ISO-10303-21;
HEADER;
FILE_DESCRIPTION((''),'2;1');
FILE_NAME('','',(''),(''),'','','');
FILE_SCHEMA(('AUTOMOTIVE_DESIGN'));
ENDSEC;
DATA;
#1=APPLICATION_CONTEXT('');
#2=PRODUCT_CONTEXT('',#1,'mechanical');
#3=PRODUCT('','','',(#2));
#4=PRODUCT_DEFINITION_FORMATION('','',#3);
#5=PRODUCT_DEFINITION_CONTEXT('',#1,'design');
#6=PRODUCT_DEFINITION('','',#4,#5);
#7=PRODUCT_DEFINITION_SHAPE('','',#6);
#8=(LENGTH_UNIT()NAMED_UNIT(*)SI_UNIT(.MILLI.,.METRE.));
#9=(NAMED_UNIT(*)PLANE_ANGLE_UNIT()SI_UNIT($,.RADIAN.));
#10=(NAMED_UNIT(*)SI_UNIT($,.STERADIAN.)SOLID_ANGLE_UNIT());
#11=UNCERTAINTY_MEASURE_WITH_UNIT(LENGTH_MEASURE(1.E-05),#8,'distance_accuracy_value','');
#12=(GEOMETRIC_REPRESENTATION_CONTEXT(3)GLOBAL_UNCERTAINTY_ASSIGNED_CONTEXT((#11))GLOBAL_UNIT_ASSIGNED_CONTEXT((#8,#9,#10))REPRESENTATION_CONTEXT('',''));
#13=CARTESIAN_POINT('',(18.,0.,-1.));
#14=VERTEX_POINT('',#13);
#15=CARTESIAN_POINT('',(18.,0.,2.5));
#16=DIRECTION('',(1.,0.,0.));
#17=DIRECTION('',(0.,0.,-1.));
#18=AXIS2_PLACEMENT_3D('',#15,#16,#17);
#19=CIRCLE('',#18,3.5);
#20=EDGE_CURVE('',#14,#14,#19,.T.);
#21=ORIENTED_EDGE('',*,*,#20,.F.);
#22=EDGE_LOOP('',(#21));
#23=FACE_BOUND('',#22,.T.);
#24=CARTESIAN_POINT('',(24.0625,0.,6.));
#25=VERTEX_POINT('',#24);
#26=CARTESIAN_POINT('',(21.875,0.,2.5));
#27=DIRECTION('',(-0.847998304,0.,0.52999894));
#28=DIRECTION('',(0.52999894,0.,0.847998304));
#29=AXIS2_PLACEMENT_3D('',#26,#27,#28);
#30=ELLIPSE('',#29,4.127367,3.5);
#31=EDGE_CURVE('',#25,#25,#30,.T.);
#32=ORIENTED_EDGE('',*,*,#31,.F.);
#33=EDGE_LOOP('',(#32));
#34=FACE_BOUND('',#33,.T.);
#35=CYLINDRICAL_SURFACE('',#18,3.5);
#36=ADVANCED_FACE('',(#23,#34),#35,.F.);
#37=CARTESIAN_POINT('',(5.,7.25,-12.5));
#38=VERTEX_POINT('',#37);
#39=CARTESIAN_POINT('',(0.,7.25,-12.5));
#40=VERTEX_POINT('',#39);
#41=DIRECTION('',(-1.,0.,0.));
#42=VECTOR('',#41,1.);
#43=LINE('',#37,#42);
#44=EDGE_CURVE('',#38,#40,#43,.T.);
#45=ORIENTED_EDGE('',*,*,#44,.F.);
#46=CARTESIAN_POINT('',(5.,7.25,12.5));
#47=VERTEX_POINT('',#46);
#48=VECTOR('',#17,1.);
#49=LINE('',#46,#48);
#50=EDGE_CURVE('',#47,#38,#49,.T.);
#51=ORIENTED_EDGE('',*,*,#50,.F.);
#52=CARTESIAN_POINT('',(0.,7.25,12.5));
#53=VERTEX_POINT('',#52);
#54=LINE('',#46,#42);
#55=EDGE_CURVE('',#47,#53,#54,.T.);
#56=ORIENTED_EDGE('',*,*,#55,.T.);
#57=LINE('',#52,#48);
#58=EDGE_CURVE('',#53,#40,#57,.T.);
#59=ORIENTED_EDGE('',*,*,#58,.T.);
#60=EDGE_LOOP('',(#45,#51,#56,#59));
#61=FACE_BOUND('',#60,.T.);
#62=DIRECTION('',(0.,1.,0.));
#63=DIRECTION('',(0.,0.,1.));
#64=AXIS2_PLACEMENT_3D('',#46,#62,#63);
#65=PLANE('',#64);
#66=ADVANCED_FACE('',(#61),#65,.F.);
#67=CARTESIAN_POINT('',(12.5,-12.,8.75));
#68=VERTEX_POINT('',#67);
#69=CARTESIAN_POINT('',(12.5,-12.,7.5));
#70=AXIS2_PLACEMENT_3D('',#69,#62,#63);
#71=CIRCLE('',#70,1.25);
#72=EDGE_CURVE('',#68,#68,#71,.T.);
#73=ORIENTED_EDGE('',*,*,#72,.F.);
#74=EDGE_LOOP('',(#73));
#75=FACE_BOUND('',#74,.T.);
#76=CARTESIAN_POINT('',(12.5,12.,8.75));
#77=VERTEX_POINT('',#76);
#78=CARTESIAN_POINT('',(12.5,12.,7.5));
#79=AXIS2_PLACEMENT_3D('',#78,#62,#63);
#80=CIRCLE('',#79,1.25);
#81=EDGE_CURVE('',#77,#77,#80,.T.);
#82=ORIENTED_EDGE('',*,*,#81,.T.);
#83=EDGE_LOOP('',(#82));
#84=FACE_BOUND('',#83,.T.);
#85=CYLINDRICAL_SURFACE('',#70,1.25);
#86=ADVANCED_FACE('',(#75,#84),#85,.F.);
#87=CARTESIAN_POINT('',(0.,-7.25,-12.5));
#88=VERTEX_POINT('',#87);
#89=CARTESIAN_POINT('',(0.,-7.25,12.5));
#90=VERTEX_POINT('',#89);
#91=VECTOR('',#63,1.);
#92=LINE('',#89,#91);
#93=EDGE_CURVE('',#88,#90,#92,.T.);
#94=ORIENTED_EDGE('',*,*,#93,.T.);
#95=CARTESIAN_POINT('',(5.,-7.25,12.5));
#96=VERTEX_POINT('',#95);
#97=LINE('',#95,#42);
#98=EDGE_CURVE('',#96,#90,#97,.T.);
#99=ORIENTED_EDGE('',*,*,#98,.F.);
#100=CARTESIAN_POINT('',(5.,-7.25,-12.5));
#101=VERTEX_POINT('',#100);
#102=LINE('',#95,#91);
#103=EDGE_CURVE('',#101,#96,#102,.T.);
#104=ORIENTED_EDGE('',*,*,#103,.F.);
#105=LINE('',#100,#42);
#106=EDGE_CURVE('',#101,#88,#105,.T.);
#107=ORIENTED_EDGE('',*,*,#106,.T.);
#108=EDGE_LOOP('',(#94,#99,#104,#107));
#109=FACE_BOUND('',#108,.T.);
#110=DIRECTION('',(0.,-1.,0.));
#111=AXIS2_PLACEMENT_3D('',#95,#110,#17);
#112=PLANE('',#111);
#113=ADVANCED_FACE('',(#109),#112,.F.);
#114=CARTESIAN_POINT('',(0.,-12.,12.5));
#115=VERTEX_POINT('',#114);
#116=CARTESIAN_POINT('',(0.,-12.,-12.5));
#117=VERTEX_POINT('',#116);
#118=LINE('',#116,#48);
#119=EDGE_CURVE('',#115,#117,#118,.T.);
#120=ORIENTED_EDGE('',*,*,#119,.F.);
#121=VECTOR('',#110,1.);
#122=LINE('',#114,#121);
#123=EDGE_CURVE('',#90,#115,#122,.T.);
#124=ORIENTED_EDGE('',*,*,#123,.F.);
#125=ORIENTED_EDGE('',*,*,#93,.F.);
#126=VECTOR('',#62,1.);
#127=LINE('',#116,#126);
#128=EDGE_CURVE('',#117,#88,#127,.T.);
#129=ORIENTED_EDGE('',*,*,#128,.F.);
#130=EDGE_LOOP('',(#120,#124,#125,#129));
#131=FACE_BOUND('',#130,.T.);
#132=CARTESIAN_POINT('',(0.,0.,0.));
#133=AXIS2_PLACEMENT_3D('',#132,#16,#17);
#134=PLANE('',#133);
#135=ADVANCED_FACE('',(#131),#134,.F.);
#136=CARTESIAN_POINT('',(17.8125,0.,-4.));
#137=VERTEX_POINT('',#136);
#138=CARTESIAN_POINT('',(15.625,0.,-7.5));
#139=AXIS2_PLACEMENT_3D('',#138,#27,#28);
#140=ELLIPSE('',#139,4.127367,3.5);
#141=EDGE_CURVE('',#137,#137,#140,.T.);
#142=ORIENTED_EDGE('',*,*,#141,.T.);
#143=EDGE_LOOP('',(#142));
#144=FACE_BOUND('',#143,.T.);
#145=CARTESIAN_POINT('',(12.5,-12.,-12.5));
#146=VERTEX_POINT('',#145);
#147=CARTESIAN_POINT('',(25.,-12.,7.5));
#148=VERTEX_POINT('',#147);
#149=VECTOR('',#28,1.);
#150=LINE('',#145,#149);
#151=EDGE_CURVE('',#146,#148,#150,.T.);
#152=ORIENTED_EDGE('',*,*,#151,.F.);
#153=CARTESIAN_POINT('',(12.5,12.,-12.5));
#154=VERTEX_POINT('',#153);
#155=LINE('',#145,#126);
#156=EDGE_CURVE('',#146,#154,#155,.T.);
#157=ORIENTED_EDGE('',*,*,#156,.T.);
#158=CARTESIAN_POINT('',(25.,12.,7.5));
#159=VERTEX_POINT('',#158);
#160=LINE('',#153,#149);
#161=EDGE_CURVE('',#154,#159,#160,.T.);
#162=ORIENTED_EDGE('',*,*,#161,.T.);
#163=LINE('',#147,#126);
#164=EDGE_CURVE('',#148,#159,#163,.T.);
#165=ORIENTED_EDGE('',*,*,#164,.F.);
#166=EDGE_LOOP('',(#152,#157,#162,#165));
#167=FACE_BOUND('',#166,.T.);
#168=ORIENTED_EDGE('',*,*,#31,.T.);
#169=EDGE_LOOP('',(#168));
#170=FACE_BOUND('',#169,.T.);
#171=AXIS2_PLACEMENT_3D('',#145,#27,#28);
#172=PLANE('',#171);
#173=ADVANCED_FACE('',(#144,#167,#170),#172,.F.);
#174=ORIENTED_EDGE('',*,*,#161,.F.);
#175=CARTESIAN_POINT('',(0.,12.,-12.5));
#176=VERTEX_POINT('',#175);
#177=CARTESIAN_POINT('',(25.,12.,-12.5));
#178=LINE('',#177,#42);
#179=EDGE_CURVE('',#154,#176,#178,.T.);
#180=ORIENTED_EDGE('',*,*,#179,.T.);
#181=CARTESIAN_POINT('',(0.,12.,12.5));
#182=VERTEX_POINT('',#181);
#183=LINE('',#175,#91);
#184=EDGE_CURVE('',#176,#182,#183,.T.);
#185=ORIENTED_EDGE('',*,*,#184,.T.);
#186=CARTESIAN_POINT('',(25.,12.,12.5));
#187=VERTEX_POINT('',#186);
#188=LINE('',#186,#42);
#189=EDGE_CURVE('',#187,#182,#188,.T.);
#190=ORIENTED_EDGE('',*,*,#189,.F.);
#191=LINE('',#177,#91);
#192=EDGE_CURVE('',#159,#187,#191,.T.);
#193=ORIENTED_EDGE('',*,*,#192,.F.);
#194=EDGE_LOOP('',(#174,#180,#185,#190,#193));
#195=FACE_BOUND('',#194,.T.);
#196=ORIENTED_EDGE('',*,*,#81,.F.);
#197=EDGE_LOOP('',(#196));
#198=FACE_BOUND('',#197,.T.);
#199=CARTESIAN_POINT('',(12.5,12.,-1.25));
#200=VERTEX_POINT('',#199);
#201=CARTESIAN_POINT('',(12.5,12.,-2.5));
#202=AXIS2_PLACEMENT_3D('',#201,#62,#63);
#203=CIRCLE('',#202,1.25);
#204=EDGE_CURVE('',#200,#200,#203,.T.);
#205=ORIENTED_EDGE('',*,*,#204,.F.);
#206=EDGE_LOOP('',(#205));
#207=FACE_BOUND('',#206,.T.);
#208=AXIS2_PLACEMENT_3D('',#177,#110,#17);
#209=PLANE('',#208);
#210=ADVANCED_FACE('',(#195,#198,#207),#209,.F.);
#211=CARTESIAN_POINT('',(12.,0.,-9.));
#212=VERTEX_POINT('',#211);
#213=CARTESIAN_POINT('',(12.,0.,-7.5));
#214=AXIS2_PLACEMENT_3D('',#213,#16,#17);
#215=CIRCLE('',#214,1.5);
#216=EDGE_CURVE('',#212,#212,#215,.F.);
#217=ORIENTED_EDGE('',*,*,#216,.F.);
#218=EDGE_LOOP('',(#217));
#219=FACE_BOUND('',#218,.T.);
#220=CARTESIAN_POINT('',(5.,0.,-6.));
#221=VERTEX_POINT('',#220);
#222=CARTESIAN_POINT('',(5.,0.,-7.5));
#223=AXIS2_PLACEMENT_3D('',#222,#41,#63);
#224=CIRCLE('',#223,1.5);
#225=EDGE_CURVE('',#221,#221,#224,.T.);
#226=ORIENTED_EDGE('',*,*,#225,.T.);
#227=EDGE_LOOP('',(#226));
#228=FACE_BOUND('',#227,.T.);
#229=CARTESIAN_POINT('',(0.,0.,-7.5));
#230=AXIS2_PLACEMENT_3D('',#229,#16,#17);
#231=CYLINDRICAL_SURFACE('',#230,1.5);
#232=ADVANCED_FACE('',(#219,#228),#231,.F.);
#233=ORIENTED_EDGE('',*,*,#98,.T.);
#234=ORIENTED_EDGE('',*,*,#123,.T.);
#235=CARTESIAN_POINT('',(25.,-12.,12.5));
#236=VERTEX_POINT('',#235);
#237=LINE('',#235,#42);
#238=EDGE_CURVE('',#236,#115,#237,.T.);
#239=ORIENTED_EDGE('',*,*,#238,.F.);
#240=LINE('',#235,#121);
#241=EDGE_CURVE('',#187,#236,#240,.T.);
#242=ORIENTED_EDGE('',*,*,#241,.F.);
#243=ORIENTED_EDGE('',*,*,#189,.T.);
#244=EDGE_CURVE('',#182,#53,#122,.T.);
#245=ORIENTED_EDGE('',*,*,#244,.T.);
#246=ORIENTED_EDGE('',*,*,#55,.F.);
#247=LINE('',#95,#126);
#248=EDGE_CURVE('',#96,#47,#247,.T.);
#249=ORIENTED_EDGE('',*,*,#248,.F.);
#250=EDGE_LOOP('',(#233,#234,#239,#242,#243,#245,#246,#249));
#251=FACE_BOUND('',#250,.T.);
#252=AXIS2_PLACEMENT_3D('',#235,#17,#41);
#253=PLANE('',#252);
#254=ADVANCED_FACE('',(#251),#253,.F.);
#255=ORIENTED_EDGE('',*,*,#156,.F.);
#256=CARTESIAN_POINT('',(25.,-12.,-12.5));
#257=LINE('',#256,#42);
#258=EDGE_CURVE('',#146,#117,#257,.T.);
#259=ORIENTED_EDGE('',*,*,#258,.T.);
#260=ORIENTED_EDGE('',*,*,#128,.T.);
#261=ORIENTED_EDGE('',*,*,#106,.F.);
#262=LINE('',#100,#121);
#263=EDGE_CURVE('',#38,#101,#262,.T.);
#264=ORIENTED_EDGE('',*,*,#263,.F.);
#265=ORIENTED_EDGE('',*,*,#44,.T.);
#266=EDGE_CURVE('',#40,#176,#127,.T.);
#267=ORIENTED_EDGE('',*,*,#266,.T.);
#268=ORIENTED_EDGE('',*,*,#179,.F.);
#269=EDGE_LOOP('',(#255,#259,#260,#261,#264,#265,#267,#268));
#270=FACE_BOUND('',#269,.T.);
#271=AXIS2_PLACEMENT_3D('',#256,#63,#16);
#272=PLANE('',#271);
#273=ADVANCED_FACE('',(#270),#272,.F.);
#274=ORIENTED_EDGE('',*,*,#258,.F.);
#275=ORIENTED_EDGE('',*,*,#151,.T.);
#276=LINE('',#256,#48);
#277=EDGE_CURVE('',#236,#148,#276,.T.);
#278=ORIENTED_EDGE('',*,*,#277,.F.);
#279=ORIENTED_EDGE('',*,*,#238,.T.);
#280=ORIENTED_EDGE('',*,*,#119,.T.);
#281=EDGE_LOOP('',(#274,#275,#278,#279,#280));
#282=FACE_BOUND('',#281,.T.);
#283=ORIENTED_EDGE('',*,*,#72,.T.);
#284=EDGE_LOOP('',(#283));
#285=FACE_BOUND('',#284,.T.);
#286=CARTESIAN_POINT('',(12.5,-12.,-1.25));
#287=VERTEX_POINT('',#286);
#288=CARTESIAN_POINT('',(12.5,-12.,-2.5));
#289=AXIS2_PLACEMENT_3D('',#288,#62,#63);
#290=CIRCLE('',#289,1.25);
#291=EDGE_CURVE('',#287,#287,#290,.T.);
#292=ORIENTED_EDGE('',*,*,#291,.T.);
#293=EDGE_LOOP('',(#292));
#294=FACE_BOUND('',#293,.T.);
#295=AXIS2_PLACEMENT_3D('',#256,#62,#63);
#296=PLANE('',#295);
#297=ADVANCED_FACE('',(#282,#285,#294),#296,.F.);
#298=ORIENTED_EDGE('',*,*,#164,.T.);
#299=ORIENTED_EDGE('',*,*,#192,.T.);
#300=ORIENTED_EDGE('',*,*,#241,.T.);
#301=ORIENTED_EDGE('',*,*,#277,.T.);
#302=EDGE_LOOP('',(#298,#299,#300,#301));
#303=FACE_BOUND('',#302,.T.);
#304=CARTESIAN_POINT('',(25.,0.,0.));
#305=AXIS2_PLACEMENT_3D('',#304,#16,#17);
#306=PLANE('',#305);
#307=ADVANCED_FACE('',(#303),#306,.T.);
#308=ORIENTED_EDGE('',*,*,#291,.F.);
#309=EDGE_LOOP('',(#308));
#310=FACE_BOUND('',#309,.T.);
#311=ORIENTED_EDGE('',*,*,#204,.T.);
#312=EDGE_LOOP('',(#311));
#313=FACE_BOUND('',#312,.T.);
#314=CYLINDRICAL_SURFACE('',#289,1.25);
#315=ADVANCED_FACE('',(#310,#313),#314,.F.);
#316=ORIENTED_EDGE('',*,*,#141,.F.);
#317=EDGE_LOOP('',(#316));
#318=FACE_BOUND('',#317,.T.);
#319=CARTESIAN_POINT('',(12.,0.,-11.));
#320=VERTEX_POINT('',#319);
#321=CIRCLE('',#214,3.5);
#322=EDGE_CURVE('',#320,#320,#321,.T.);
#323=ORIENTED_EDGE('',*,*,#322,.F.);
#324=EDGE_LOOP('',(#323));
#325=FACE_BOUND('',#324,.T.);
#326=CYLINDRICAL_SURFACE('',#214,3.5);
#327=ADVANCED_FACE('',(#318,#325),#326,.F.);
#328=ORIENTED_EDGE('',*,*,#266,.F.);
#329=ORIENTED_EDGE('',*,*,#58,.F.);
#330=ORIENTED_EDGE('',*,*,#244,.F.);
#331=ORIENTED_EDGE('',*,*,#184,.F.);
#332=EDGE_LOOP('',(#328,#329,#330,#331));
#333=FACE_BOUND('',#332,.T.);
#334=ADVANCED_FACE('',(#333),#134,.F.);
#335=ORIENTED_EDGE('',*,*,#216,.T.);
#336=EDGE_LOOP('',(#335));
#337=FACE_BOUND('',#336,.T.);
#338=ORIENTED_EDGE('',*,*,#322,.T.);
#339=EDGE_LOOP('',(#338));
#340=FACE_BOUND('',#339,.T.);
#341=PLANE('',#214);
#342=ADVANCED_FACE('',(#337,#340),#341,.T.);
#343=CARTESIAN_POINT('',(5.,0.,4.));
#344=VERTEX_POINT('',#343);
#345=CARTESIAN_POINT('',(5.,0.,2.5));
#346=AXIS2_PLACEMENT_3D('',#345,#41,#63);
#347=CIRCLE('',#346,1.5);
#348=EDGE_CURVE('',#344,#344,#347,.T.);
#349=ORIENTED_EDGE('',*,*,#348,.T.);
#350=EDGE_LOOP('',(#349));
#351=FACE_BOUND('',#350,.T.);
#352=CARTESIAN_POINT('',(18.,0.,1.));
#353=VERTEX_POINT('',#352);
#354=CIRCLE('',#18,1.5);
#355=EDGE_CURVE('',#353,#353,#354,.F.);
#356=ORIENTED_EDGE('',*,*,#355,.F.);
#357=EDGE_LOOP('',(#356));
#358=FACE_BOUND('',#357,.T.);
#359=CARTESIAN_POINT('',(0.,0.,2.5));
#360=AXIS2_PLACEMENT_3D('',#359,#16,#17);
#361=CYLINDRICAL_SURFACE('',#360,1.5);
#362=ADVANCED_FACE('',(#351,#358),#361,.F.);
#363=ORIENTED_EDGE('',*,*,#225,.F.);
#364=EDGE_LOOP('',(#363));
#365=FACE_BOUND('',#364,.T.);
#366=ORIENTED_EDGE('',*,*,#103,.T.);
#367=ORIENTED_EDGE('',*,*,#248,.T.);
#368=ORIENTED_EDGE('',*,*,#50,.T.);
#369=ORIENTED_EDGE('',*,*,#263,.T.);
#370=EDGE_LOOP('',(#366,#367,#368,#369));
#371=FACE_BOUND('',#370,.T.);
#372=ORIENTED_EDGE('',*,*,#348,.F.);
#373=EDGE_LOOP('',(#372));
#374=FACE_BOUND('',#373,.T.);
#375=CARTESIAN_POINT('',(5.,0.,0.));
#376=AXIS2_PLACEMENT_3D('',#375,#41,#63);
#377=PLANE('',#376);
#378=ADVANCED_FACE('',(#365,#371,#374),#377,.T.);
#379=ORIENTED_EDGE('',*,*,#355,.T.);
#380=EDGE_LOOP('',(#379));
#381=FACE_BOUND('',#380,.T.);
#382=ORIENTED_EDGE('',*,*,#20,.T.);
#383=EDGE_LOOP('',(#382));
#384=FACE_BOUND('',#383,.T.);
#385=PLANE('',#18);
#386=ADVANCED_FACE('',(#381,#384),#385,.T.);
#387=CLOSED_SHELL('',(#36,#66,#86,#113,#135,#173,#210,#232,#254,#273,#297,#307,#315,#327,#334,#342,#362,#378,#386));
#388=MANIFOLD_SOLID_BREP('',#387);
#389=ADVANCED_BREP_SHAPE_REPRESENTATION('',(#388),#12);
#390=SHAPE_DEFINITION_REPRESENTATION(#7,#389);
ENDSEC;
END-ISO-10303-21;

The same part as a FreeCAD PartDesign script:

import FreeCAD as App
import Part
import Sketcher

V = App.Vector

doc = App.newDocument("Part")
body = doc.addObject("PartDesign::Body", "Body")

# Sketch on YZ plane
sketch1 = body.newObject("Sketcher::SketchObject", "Sketch")
sketch1.AttachmentSupport = (doc.getObject("YZ_Plane"), [""])
sketch1.MapMode = "FlatFace"
sketch1.addGeometry([
    Part.LineSegment(V(12, 12.5, 0), V(-12, 12.5, 0)),
    Part.LineSegment(V(-12, 12.5, 0), V(-12, -12.5, 0)),
    Part.LineSegment(V(-12, -12.5, 0), V(12, -12.5, 0)),
    Part.LineSegment(V(12, -12.5, 0), V(12, 12.5, 0)),
], False)
sketch1.addConstraint([
    Sketcher.Constraint("Coincident", 0, 2, 1, 1),
    Sketcher.Constraint("Coincident", 1, 2, 2, 1),
    Sketcher.Constraint("Coincident", 2, 2, 3, 1),
    Sketcher.Constraint("Coincident", 3, 2, 0, 1),
    Sketcher.Constraint("Horizontal", 0),
    Sketcher.Constraint("Vertical", 1),
    Sketcher.Constraint("Horizontal", 2),
    Sketcher.Constraint("Vertical", 3),
    Sketcher.Constraint("Symmetric", 0, 2, 2, 2, -1, 1),
    Sketcher.Constraint("DistanceX", 0, 2, 0, 1, 24.0),
    Sketcher.Constraint("DistanceY", 1, 2, 1, 1, 25.0),
])
pad1 = body.newObject("PartDesign::Pad", "Pad")
pad1.Profile = sketch1
pad1.Length = 25

# Sketch on YZ plane
sketch2 = body.newObject("Sketcher::SketchObject", "Sketch001")
sketch2.AttachmentSupport = (doc.getObject("YZ_Plane"), [""])
sketch2.MapMode = "FlatFace"
sketch2.addGeometry([
    Part.LineSegment(V(7.25, -12.5, 0), V(-7.25, -12.5, 0)),
    Part.LineSegment(V(-7.25, -12.5, 0), V(-7.25, 12.5, 0)),
    Part.LineSegment(V(-7.25, 12.5, 0), V(7.25, 12.5, 0)),
    Part.LineSegment(V(7.25, 12.5, 0), V(7.25, -12.5, 0)),
], False)
sketch2.addConstraint([
    Sketcher.Constraint("Coincident", 0, 2, 1, 1),
    Sketcher.Constraint("Coincident", 1, 2, 2, 1),
    Sketcher.Constraint("Coincident", 2, 2, 3, 1),
    Sketcher.Constraint("Coincident", 3, 2, 0, 1),
    Sketcher.Constraint("Horizontal", 0),
    Sketcher.Constraint("Vertical", 1),
    Sketcher.Constraint("Horizontal", 2),
    Sketcher.Constraint("Vertical", 3),
    Sketcher.Constraint("Symmetric", 0, 2, 2, 2, -1, 1),
    Sketcher.Constraint("DistanceY", 1, 1, 1, 2, 25.0),
    Sketcher.Constraint("DistanceX", 0, 2, 0, 1, 14.5),
])
pocket1 = body.newObject("PartDesign::Pocket", "Pocket")
pocket1.Profile = sketch2
pocket1.Length = 5
pocket1.Reversed = True

# Sketch on YZ plane
sketch3 = body.newObject("Sketcher::SketchObject", "Sketch002")
sketch3.AttachmentSupport = (doc.getObject("YZ_Plane"), [""])
sketch3.MapMode = "FlatFace"
sketch3.AttachmentOffset = App.Placement(V(0, 0, 25), App.Rotation())
sketch3.addGeometry([
    Part.Circle(V(0, 2.5, 0), V(0, 0, 1), 1.5),
    Part.Circle(V(0, -7.5, 0), V(0, 0, 1), 1.5),
], False)
sketch3.addConstraint([
    Sketcher.Constraint("Equal", 0, 1),
    Sketcher.Constraint("PointOnObject", 0, 3, -2),
    Sketcher.Constraint("PointOnObject", 1, 3, -2),
    Sketcher.Constraint("Diameter", 0, 3.0),
    Sketcher.Constraint("DistanceY", 1, 3, 0, 3, 10.0),
    Sketcher.Constraint("DistanceY", -1, 1, 0, 3, 2.5),
])
pocket2 = body.newObject("PartDesign::Pocket", "Pocket001")
pocket2.Profile = sketch3
pocket2.Type = "ThroughAll"

# Sketch on XZ plane
sketch4 = body.newObject("Sketcher::SketchObject", "Sketch003")
sketch4.AttachmentSupport = (doc.getObject("XZ_Plane"), [""])
sketch4.MapMode = "FlatFace"
sketch4.AttachmentOffset = App.Placement(V(0, 0, -12), App.Rotation())
sketch4.addGeometry([
    Part.LineSegment(V(12.5, -12.5, 0), V(25, 7.5, 0)),
    Part.LineSegment(V(25, 7.5, 0), V(25, -12.5, 0)),
    Part.LineSegment(V(25, -12.5, 0), V(12.5, -12.5, 0)),
], False)
sketch4.addConstraint([
    Sketcher.Constraint("Coincident", 0, 2, 1, 1),
    Sketcher.Constraint("Coincident", 1, 2, 2, 1),
    Sketcher.Constraint("Coincident", 2, 2, 0, 1),
    Sketcher.Constraint("Vertical", 1),
    Sketcher.Constraint("Horizontal", 2),
    Sketcher.Constraint("DistanceY", 1, 2, 1, 1, 20.0),
    Sketcher.Constraint("DistanceX", 2, 2, 2, 1, 12.5),
    Sketcher.Constraint("DistanceX", -1, 1, 0, 2, 25.0),
    Sketcher.Constraint("DistanceY", -1, 1, 0, 2, 7.5),
])
pocket3 = body.newObject("PartDesign::Pocket", "Pocket002")
pocket3.Profile = sketch4
pocket3.Type = "ThroughAll"
pocket3.Reversed = True

# Sketch on YZ plane
sketch5 = body.newObject("Sketcher::SketchObject", "Sketch004")
sketch5.AttachmentSupport = (doc.getObject("YZ_Plane"), [""])
sketch5.MapMode = "FlatFace"
sketch5.AttachmentOffset = App.Placement(V(0, 0, 25), App.Rotation())
sketch5.addGeometry(Part.Circle(V(0, -7.5, 0), V(0, 0, 1), 3.5), False)
sketch5.addConstraint([
    Sketcher.Constraint("PointOnObject", 0, 3, -2),
    Sketcher.Constraint("Diameter", 0, 7.0),
    Sketcher.Constraint("DistanceY", 0, 3, -1, 1, 7.5),
])
pocket4 = body.newObject("PartDesign::Pocket", "Pocket003")
pocket4.Profile = sketch5
pocket4.Length = 13

# Sketch on YZ plane
sketch6 = body.newObject("Sketcher::SketchObject", "Sketch005")
sketch6.AttachmentSupport = (doc.getObject("YZ_Plane"), [""])
sketch6.MapMode = "FlatFace"
sketch6.AttachmentOffset = App.Placement(V(0, 0, 25), App.Rotation())
sketch6.addGeometry(Part.Circle(V(0, 2.5, 0), V(0, 0, 1), 3.5), False)
sketch6.addConstraint([
    Sketcher.Constraint("PointOnObject", 0, 3, -2),
    Sketcher.Constraint("Diameter", 0, 7.0),
    Sketcher.Constraint("DistanceY", -1, 1, 0, 3, 2.5),
])
pocket5 = body.newObject("PartDesign::Pocket", "Pocket004")
pocket5.Profile = sketch6
pocket5.Length = 7

# Sketch on XZ plane
sketch7 = body.newObject("Sketcher::SketchObject", "Sketch006")
sketch7.AttachmentSupport = (doc.getObject("XZ_Plane"), [""])
sketch7.MapMode = "FlatFace"
sketch7.AttachmentOffset = App.Placement(V(0, 0, -12), App.Rotation())
sketch7.addGeometry([
    Part.Circle(V(12.5, -2.5, 0), V(0, 0, 1), 1.25),
    Part.Circle(V(12.5, 7.5, 0), V(0, 0, 1), 1.25),
], False)
sketch7.addConstraint([
    Sketcher.Constraint("Equal", 0, 1),
    Sketcher.Constraint("Vertical", 0, 3, 1, 3),
    Sketcher.Constraint("Diameter", 0, 2.5),
    Sketcher.Constraint("DistanceY", 0, 3, 1, 3, 10.0),
    Sketcher.Constraint("DistanceX", -1, 1, 0, 3, 12.5),
    Sketcher.Constraint("DistanceY", 0, 3, -1, 1, 2.5),
])
pocket6 = body.newObject("PartDesign::Pocket", "Pocket005")
pocket6.Profile = sketch7
pocket6.Type = "ThroughAll"
pocket6.Reversed = True

doc.recompute()
